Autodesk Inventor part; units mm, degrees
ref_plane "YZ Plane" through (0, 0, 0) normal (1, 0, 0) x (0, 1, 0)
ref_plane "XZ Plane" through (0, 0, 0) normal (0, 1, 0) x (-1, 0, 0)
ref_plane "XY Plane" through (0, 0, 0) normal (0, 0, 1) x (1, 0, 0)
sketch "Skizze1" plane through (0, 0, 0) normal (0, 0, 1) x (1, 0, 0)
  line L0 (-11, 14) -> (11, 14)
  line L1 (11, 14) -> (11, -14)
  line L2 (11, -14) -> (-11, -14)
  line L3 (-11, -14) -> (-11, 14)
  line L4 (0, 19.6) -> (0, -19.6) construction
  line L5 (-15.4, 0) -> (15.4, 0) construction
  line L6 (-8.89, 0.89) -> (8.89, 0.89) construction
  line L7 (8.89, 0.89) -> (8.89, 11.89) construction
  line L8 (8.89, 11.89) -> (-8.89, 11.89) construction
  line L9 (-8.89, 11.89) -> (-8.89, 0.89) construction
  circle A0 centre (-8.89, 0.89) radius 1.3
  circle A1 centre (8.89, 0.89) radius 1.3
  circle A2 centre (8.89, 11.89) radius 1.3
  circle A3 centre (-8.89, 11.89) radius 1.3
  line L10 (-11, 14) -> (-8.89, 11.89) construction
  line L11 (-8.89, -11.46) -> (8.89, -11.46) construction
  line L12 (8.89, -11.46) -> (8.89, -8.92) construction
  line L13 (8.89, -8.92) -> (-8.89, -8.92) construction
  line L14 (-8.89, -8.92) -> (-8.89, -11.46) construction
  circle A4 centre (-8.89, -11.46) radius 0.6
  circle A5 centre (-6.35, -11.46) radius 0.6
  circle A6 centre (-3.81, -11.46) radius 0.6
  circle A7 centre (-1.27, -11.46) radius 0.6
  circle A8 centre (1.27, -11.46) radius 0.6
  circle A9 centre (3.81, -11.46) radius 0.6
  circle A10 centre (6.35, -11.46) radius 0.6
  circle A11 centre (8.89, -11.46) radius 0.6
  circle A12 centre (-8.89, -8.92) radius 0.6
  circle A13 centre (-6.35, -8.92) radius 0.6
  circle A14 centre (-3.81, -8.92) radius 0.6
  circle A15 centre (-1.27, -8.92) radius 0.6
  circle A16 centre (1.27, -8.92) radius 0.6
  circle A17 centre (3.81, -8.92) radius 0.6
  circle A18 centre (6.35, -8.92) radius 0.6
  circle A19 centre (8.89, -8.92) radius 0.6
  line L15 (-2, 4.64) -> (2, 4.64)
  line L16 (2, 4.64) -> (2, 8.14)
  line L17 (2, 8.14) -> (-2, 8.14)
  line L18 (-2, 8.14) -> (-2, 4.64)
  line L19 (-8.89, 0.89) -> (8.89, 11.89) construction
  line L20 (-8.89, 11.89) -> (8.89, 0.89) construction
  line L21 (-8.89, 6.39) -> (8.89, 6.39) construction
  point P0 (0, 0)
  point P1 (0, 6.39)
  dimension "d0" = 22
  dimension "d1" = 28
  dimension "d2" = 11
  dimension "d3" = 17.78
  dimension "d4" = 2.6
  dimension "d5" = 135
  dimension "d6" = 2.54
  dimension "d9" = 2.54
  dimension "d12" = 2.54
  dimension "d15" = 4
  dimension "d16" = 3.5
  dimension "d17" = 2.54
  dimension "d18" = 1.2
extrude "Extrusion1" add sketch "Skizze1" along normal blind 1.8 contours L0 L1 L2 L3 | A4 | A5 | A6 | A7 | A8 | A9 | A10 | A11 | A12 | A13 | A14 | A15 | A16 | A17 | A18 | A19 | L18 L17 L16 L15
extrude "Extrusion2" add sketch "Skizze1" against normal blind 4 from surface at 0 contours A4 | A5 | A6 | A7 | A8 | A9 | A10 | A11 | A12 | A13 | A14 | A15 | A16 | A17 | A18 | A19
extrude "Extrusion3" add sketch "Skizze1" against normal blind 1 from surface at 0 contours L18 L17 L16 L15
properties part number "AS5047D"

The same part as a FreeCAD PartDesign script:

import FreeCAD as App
import Part
import Sketcher

V = App.Vector
Q = App.Units.Quantity

doc = App.newDocument("Part")
body = doc.addObject("PartDesign::Body", "Body")

# Sketch on XY plane
sketch1 = doc.addObject("Sketcher::SketchObject", "Sketch")
body.addObject(sketch1)
sketch1.AttachmentSupport = (doc.XY_Plane, [""])
sketch1.MapMode = "FlatFace"
sketch1.addGeometry(Part.LineSegment(V(11, 14, 0), V(-11, 14, 0)), False)
sketch1.addGeometry(Part.LineSegment(V(-11, 14, 0), V(-11, -14, 0)), False)
sketch1.addGeometry(Part.LineSegment(V(-11, -14, 0), V(11, -14, 0)), False)
sketch1.addGeometry(Part.LineSegment(V(11, -14, 0), V(11, 14, 0)), False)
sketch1.addGeometry(Part.Circle(V(-8.9, 0.9, 0), V(0, 0, 1), 1.3), False)
sketch1.addGeometry(Part.Circle(V(-8.9, 11.9, 0), V(0, 0, 1), 1.3), False)
sketch1.addGeometry(Part.Circle(V(8.9, 0.9, 0), V(0, 0, 1), 1.3), False)
sketch1.addGeometry(Part.Circle(V(8.9, 11.9, 0), V(0, 0, 1), 1.3), False)
sketch1.addConstraint(Sketcher.Constraint("Coincident", 0, 2, 1, 1))
sketch1.addConstraint(Sketcher.Constraint("Coincident", 1, 2, 2, 1))
sketch1.addConstraint(Sketcher.Constraint("Coincident", 2, 2, 3, 1))
sketch1.addConstraint(Sketcher.Constraint("Coincident", 3, 2, 0, 1))
sketch1.addConstraint(Sketcher.Constraint("Horizontal", 0))
sketch1.addConstraint(Sketcher.Constraint("Vertical", 1))
sketch1.addConstraint(Sketcher.Constraint("Horizontal", 2))
sketch1.addConstraint(Sketcher.Constraint("Vertical", 3))
sketch1.addConstraint(Sketcher.Constraint("Equal", 4, 5))
sketch1.addConstraint(Sketcher.Constraint("Equal", 5, 6))
sketch1.addConstraint(Sketcher.Constraint("Equal", 6, 7))
sketch1.addConstraint(Sketcher.Constraint("Symmetric", 0, 2, 2, 2, -1, 1))
sketch1.addConstraint(Sketcher.Constraint("Symmetric", 4, 3, 6, 3, -2))
sketch1.addConstraint(Sketcher.Constraint("Symmetric", 5, 3, 7, 3, -2))
sketch1.addConstraint(Sketcher.Constraint("Vertical", 4, 3, 5, 3))
sketch1.addConstraint(Sketcher.Constraint("Diameter", 4, Q("2.6 mm")))
sketch1.addConstraint(Sketcher.Constraint("DistanceX", 0, 2, 0, 1, Q("22 mm")))
sketch1.addConstraint(Sketcher.Constraint("DistanceY", 1, 2, 1, 1, Q("28 mm")))
sketch1.addConstraint(Sketcher.Constraint("DistanceY", 4, 3, 5, 3, Q("11 mm")))
sketch1.addConstraint(Sketcher.Constraint("DistanceX", 4, 3, 6, 3, Q("17.78 mm")))
sketch1.addConstraint(Sketcher.Constraint("DistanceY", -1, 1, 4, 3, Q("0.89 mm")))
pad1 = doc.addObject("PartDesign::Pad", "Pad")
body.addObject(pad1)
pad1.Profile = sketch1
pad1.Length = 1.8

# Sketch on XY plane
sketch2 = doc.addObject("Sketcher::SketchObject", "Sketch001")
body.addObject(sketch2)
sketch2.AttachmentSupport = (doc.XY_Plane, [""])
sketch2.MapMode = "FlatFace"
sketch2.addGeometry(Part.Circle(V(-8.9, -11.5, 0), V(0, 0, 1), 0.6), False)
sketch2.addGeometry(Part.Circle(V(-6.3, -11.5, 0), V(0, 0, 1), 0.6), False)
sketch2.addGeometry(Part.Circle(V(-3.8, -11.5, 0), V(0, 0, 1), 0.6), False)
sketch2.addGeometry(Part.Circle(V(-1.3, -11.5, 0), V(0, 0, 1), 0.6), False)
sketch2.addGeometry(Part.Circle(V(1.3, -11.5, 0), V(0, 0, 1), 0.6), False)
sketch2.addGeometry(Part.Circle(V(3.8, -11.5, 0), V(0, 0, 1), 0.6), False)
sketch2.addGeometry(Part.Circle(V(6.3, -11.5, 0), V(0, 0, 1), 0.6), False)
sketch2.addGeometry(Part.Circle(V(8.9, -11.5, 0), V(0, 0, 1), 0.6), False)
sketch2.addGeometry(Part.Circle(V(-8.9, -8.9, 0), V(0, 0, 1), 0.6), False)
sketch2.addGeometry(Part.Circle(V(-6.3, -8.9, 0), V(0, 0, 1), 0.6), False)
sketch2.addGeometry(Part.Circle(V(-3.8, -8.9, 0), V(0, 0, 1), 0.6), False)
sketch2.addGeometry(Part.Circle(V(-1.3, -8.9, 0), V(0, 0, 1), 0.6), False)
sketch2.addGeometry(Part.Circle(V(1.3, -8.9, 0), V(0, 0, 1), 0.6), False)
sketch2.addGeometry(Part.Circle(V(3.8, -8.9, 0), V(0, 0, 1), 0.6), False)
sketch2.addGeometry(Part.Circle(V(6.3, -8.9, 0), V(0, 0, 1), 0.6), False)
sketch2.addGeometry(Part.Circle(V(8.9, -8.9, 0), V(0, 0, 1), 0.6), False)
sketch2.addConstraint(Sketcher.Constraint("Equal", 0, 1))
sketch2.addConstraint(Sketcher.Constraint("Equal", 1, 2))
sketch2.addConstraint(Sketcher.Constraint("Equal", 2, 3))
sketch2.addConstraint(Sketcher.Constraint("Equal", 3, 4))
sketch2.addConstraint(Sketcher.Constraint("Equal", 4, 5))
sketch2.addConstraint(Sketcher.Constraint("Equal", 5, 6))
sketch2.addConstraint(Sketcher.Constraint("Equal", 6, 7))
sketch2.addConstraint(Sketcher.Constraint("Equal", 7, 8))
sketch2.addConstraint(Sketcher.Constraint("Equal", 8, 9))
sketch2.addConstraint(Sketcher.Constraint("Equal", 9, 10))
sketch2.addConstraint(Sketcher.Constraint("Equal", 10, 11))
sketch2.addConstraint(Sketcher.Constraint("Equal", 11, 12))
sketch2.addConstraint(Sketcher.Constraint("Equal", 12, 13))
sketch2.addConstraint(Sketcher.Constraint("Equal", 13, 14))
sketch2.addConstraint(Sketcher.Constraint("Equal", 14, 15))
sketch2.addConstraint(Sketcher.Constraint("Symmetric", 3, 3, 4, 3, -2))
sketch2.addConstraint(Sketcher.Constraint("Symmetric", 2, 3, 5, 3, -2))
sketch2.addConstraint(Sketcher.Constraint("Symmetric", 1, 3, 6, 3, -2))
sketch2.addConstraint(Sketcher.Constraint("Symmetric", 0, 3, 7, 3, -2))
sketch2.addConstraint(Sketcher.Constraint("Symmetric", 11, 3, 12, 3, -2))
sketch2.addConstraint(Sketcher.Constraint("Symmetric", 10, 3, 13, 3, -2))
sketch2.addConstraint(Sketcher.Constraint("Symmetric", 9, 3, 14, 3, -2))
sketch2.addConstraint(Sketcher.Constraint("Symmetric", 8, 3, 15, 3, -2))
sketch2.addConstraint(Sketcher.Constraint("Horizontal", 0, 3, 1, 3))
sketch2.addConstraint(Sketcher.Constraint("Horizontal", 1, 3, 2, 3))
sketch2.addConstraint(Sketcher.Constraint("Horizontal", 2, 3, 3, 3))
sketch2.addConstraint(Sketcher.Constraint("Horizontal", 8, 3, 9, 3))
sketch2.addConstraint(Sketcher.Constraint("Horizontal", 9, 3, 10, 3))
sketch2.addConstraint(Sketcher.Constraint("Horizontal", 10, 3, 11, 3))
sketch2.addConstraint(Sketcher.Constraint("Vertical", 0, 3, 8, 3))
sketch2.addConstraint(Sketcher.Constraint("Vertical", 1, 3, 9, 3))
sketch2.addConstraint(Sketcher.Constraint("Vertical", 2, 3, 10, 3))
sketch2.addConstraint(Sketcher.Constraint("Vertical", 3, 3, 11, 3))
sketch2.addConstraint(Sketcher.Constraint("Diameter", 0, Q("1.2 mm")))
sketch2.addConstraint(Sketcher.Constraint("DistanceX", 0, 3, 1, 3, Q("2.54 mm")))
sketch2.addConstraint(Sketcher.Constraint("DistanceX", 1, 3, 2, 3, Q("2.54 mm")))
sketch2.addConstraint(Sketcher.Constraint("DistanceX", 2, 3, 3, 3, Q("2.54 mm")))
sketch2.addConstraint(Sketcher.Constraint("DistanceX", 3, 3, 4, 3, Q("2.54 mm")))
sketch2.addConstraint(Sketcher.Constraint("DistanceY", 0, 3, 8, 3, Q("2.54 mm")))
sketch2.addConstraint(Sketcher.Constraint("DistanceY", 0, 3, -1, 1, Q("11.46 mm")))
pad2 = doc.addObject("PartDesign::Pad", "Pad001")
body.addObject(pad2)
pad2.Profile = sketch2
pad2.Length = 4
pad2.Reversed = True

# Sketch on XY plane
sketch3 = doc.addObject("Sketcher::SketchObject", "Sketch002")
body.addObject(sketch3)
sketch3.AttachmentSupport = (doc.XY_Plane, [""])
sketch3.MapMode = "FlatFace"
sketch3.addGeometry(Part.LineSegment(V(-2, 8.1, 0), V(-2, 4.6, 0)), False)
sketch3.addGeometry(Part.LineSegment(V(-2, 4.6, 0), V(2, 4.6, 0)), False)
sketch3.addGeometry(Part.LineSegment(V(2, 4.6, 0), V(2, 8.1, 0)), False)
sketch3.addGeometry(Part.LineSegment(V(2, 8.1, 0), V(-2, 8.1, 0)), False)
sketch3.addConstraint(Sketcher.Constraint("Coincident", 0, 2, 1, 1))
sketch3.addConstraint(Sketcher.Constraint("Coincident", 1, 2, 2, 1))
sketch3.addConstraint(Sketcher.Constraint("Coincident", 2, 2, 3, 1))
sketch3.addConstraint(Sketcher.Constraint("Coincident", 3, 2, 0, 1))
sketch3.addConstraint(Sketcher.Constraint("Vertical", 0))
sketch3.addConstraint(Sketcher.Constraint("Horizontal", 1))
sketch3.addConstraint(Sketcher.Constraint("Vertical", 2))
sketch3.addConstraint(Sketcher.Constraint("Horizontal", 3))
sketch3.addConstraint(Sketcher.Constraint("DistanceX", 1, 1, 1, 2, Q("4 mm")))
sketch3.addConstraint(Sketcher.Constraint("DistanceY", 0, 2, 0, 1, Q("3.5 mm")))
sketch3.addConstraint(Sketcher.Constraint("DistanceX", 0, 2, -1, 1, Q("2 mm")))
sketch3.addConstraint(Sketcher.Constraint("DistanceY", -1, 1, 0, 2, Q("4.64 mm")))
pad3 = doc.addObject("PartDesign::Pad", "Pad002")
body.addObject(pad3)
pad3.Profile = sketch3
pad3.Length = 1
pad3.Reversed = True

doc.recompute()
